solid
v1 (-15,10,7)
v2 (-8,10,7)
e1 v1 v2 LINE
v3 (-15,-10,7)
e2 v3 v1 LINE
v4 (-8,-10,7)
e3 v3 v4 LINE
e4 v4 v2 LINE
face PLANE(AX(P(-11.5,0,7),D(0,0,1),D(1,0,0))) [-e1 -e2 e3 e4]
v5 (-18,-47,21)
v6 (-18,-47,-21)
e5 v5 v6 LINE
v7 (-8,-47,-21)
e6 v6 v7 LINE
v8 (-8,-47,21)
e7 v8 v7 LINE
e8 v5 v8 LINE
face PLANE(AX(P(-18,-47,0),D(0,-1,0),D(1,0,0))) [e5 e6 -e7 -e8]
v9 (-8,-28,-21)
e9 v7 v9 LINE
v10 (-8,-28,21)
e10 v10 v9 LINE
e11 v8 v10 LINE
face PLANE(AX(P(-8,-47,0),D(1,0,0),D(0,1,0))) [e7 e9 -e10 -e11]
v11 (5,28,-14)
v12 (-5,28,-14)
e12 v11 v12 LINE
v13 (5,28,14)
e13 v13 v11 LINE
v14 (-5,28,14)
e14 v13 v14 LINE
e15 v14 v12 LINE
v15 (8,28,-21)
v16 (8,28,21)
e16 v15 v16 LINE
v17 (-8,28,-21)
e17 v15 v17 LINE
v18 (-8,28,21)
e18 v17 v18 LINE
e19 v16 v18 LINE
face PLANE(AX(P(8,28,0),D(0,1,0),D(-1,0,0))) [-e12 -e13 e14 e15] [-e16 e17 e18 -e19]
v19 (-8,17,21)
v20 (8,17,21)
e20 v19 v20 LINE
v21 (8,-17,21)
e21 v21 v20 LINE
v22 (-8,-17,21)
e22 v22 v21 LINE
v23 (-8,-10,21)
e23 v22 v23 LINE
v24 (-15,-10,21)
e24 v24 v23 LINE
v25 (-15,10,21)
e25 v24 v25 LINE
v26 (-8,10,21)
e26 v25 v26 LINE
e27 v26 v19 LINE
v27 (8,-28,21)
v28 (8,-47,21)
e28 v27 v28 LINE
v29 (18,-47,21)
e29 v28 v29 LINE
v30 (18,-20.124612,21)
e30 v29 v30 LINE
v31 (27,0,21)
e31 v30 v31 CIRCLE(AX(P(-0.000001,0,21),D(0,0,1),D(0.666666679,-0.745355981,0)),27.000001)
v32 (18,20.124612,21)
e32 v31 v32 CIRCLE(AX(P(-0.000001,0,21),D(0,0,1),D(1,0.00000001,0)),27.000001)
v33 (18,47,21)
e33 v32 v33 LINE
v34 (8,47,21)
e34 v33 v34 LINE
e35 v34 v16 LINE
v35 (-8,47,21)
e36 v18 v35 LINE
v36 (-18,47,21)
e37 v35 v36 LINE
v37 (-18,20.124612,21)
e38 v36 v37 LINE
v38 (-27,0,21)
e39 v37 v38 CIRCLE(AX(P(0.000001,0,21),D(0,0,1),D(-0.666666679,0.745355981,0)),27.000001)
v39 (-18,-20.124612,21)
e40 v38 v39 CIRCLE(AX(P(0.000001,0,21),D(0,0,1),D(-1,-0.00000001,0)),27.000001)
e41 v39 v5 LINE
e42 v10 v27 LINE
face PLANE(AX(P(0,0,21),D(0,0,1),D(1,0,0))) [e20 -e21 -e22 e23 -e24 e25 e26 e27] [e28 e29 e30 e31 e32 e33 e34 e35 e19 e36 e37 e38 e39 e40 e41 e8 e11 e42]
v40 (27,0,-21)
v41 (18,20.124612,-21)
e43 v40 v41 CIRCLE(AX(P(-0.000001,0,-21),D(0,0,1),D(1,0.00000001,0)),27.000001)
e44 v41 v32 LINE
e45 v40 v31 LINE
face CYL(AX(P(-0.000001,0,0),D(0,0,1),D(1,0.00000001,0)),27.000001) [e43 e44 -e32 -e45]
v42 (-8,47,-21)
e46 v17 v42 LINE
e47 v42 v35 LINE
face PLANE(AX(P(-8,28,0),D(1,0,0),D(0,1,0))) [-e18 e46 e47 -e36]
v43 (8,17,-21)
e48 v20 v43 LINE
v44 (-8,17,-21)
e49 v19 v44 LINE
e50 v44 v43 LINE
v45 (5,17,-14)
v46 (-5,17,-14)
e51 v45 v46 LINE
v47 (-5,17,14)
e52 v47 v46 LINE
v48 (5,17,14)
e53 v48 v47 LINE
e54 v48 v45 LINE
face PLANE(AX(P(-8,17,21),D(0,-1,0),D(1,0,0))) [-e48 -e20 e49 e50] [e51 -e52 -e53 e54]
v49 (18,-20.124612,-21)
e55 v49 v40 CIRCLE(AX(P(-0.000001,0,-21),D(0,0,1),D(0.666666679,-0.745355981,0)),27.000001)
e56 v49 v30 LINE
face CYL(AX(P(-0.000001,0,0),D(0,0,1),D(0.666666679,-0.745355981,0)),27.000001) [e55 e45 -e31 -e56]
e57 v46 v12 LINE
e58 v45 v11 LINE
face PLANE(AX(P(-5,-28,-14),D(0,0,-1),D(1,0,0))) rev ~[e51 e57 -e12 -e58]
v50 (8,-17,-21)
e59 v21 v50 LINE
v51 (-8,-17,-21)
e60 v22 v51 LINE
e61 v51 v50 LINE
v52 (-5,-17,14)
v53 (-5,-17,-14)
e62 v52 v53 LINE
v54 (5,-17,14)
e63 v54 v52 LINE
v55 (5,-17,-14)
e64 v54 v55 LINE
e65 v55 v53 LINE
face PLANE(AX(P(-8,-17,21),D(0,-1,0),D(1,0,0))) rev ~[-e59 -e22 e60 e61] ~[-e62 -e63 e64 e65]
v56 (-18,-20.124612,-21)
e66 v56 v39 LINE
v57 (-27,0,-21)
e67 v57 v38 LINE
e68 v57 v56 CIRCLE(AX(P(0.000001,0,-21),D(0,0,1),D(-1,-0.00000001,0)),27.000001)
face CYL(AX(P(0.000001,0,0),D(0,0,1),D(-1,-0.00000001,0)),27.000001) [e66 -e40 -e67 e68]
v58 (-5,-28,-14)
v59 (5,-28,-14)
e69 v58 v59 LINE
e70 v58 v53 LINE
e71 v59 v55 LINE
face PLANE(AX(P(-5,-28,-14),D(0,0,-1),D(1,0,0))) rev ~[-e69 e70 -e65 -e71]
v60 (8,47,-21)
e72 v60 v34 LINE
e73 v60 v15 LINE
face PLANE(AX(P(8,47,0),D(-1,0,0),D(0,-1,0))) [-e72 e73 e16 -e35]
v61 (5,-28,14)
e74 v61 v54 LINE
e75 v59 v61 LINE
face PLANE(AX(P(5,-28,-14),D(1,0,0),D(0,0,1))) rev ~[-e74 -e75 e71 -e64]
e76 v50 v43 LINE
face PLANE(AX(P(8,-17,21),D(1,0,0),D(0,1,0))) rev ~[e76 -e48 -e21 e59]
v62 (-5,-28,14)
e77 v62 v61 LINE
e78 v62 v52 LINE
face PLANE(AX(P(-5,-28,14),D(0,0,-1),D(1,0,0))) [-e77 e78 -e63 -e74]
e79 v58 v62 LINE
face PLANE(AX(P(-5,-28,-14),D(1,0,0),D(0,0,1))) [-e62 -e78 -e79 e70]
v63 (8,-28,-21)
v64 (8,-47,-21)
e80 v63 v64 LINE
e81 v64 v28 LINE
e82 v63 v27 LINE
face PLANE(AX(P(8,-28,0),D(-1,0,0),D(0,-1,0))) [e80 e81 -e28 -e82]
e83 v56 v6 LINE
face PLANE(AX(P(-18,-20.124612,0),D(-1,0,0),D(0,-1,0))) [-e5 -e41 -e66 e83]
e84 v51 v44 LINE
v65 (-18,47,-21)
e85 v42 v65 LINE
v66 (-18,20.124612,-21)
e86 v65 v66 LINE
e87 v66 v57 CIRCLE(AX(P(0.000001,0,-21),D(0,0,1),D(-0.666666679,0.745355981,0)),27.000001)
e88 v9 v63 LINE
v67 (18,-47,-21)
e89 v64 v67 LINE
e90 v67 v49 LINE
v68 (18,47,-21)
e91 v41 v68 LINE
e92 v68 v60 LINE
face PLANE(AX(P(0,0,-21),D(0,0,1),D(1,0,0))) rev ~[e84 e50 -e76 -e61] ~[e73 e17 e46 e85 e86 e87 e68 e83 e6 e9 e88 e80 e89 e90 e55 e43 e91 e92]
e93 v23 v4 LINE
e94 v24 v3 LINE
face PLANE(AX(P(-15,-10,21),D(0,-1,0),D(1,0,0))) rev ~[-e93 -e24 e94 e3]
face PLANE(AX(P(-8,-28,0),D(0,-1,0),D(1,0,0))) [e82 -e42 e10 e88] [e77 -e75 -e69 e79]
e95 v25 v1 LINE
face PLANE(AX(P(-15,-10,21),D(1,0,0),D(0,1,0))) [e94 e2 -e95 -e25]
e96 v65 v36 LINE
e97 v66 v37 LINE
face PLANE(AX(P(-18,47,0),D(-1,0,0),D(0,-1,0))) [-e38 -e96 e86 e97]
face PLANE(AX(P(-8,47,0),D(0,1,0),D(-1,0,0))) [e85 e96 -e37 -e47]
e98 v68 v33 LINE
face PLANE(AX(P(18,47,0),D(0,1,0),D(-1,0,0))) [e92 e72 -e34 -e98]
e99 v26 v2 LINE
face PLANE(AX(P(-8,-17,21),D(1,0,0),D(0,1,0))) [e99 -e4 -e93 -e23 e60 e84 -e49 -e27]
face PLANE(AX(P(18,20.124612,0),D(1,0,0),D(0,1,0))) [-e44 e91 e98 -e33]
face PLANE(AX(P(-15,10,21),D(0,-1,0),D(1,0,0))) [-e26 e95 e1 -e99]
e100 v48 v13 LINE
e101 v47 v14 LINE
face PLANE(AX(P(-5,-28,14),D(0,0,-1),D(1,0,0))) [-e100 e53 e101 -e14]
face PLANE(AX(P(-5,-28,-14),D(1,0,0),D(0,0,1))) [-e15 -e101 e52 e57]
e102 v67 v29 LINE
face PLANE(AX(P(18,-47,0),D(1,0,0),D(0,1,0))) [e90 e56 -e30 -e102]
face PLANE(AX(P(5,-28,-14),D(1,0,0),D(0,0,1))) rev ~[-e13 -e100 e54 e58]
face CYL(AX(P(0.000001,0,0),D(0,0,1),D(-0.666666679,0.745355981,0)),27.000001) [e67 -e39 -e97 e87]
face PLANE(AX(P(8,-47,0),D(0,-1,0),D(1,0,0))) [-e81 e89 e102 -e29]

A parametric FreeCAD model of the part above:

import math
import FreeCAD as App
import Part
import Sketcher

doc = App.newDocument("Part")
body = doc.addObject("PartDesign::Body", "Body")

# Sketch on XY plane
sketch1 = doc.addObject("Sketcher::SketchObject", "Sketch")
body.addObject(sketch1)
sketch1.AttachmentSupport = (doc.XY_Plane, [""])
sketch1.MapMode = "FlatFace"
sketch1.addGeometry([
    Part.LineSegment(App.Vector(-8, -28, 0), App.Vector(8, -28, 0)),  # 0
    Part.LineSegment(App.Vector(8, -28, 0), App.Vector(8, -47, 0)),  # 1
    Part.LineSegment(App.Vector(8, -47, 0), App.Vector(18, -47, 0)),  # 2
    Part.LineSegment(App.Vector(18, -47, 0), App.Vector(18, -20.124612, 0)),  # 3
    Part.ArcOfCircle(Part.Circle(App.Vector(-0.000001, 0, 0), App.Vector(0, 0, 1), 27.000001), math.radians(-48.189684), math.radians(-0.000001)),  # 4
    Part.ArcOfCircle(Part.Circle(App.Vector(-0.000001, 0, 0), App.Vector(0, 0, 1), 27.000001), math.radians(0.000001), math.radians(48.189684)),  # 5
    Part.LineSegment(App.Vector(18, 20.124612, 0), App.Vector(18, 47, 0)),  # 6
    Part.LineSegment(App.Vector(18, 47, 0), App.Vector(8, 47, 0)),  # 7
    Part.LineSegment(App.Vector(8, 47, 0), App.Vector(8, 28, 0)),  # 8
    Part.LineSegment(App.Vector(8, 28, 0), App.Vector(-8, 28, 0)),  # 9
    Part.LineSegment(App.Vector(-8, 28, 0), App.Vector(-8, 47, 0)),  # 10
    Part.LineSegment(App.Vector(-8, 47, 0), App.Vector(-18, 47, 0)),  # 11
    Part.LineSegment(App.Vector(-18, 47, 0), App.Vector(-18, 20.124612, 0)),  # 12
    Part.ArcOfCircle(Part.Circle(App.Vector(0.000001, 0, 0), App.Vector(0, 0, 1), 27.000001), math.radians(131.810316), math.radians(179.999999)),  # 13
    Part.ArcOfCircle(Part.Circle(App.Vector(0.000001, 0, 0), App.Vector(0, 0, 1), 27.000001), math.radians(-179.999999), math.radians(-131.810316)),  # 14
    Part.LineSegment(App.Vector(-18, -20.124612, 0), App.Vector(-18, -47, 0)),  # 15
    Part.LineSegment(App.Vector(-18, -47, 0), App.Vector(-8, -47, 0)),  # 16
    Part.LineSegment(App.Vector(-8, -47, 0), App.Vector(-8, -28, 0)),  # 17
], False)
sketch1.addConstraint([
    Sketcher.Constraint("Coincident", 0, 2, 1, 1),
    Sketcher.Constraint("Coincident", 1, 2, 2, 1),
    Sketcher.Constraint("Coincident", 2, 2, 3, 1),
    Sketcher.Constraint("Coincident", 3, 2, 4, 1),
    Sketcher.Constraint("Tangent", 4, 2, 5, 1),
    Sketcher.Constraint("Coincident", 5, 2, 6, 1),
    Sketcher.Constraint("Coincident", 6, 2, 7, 1),
    Sketcher.Constraint("Coincident", 7, 2, 8, 1),
    Sketcher.Constraint("Coincident", 8, 2, 9, 1),
    Sketcher.Constraint("Coincident", 9, 2, 10, 1),
    Sketcher.Constraint("Coincident", 10, 2, 11, 1),
    Sketcher.Constraint("Coincident", 11, 2, 12, 1),
    Sketcher.Constraint("Coincident", 12, 2, 13, 1),
    Sketcher.Constraint("Tangent", 13, 2, 14, 1),
    Sketcher.Constraint("Coincident", 14, 2, 15, 1),
    Sketcher.Constraint("Coincident", 15, 2, 16, 1),
    Sketcher.Constraint("Coincident", 16, 2, 17, 1),
    Sketcher.Constraint("Coincident", 17, 2, 0, 1),
    Sketcher.Constraint("Horizontal", 0),
    Sketcher.Constraint("Vertical", 1),
    Sketcher.Constraint("Horizontal", 2),
    Sketcher.Constraint("Vertical", 3),
    Sketcher.Constraint("Vertical", 6),
    Sketcher.Constraint("Horizontal", 7),
    Sketcher.Constraint("Vertical", 8),
    Sketcher.Constraint("Horizontal", 9),
    Sketcher.Constraint("Vertical", 10),
    Sketcher.Constraint("Horizontal", 11),
    Sketcher.Constraint("Vertical", 12),
    Sketcher.Constraint("Vertical", 15),
    Sketcher.Constraint("Horizontal", 16),
    Sketcher.Constraint("Vertical", 17),
    Sketcher.Constraint("Coincident", 4, 3, -1, 1),
    Sketcher.Constraint("Coincident", 13, 3, -1, 1),
    Sketcher.Constraint("Equal", 4, 5),
    Sketcher.Constraint("Equal", 5, 13),
    Sketcher.Constraint("Equal", 13, 14),
    Sketcher.Constraint("Symmetric", 0, 2, 9, 2, -1, 1),
    Sketcher.Constraint("Symmetric", 2, 2, 11, 2, -1, 1),
    Sketcher.Constraint("Symmetric", 6, 2, 15, 2, -1, 1),
    Sketcher.Constraint("Symmetric", 7, 2, 10, 2, -2),
    Sketcher.Constraint("PointOnObject", 4, 2, -1),
    Sketcher.Constraint("PointOnObject", 13, 2, -1),
    Sketcher.Constraint("Horizontal", 5, 2, 12, 2),
    Sketcher.Constraint("Vertical", 10, 2, 16, 2),
    Sketcher.Constraint("Radius", 4, 27.000001),
    Sketcher.Constraint("DistanceX", 0, 1, 0, 2, 16.0),
    Sketcher.Constraint("DistanceX", 2, 1, 2, 2, 10.0),
    Sketcher.Constraint("DistanceY", 1, 2, 1, 1, 19.0),
    Sketcher.Constraint("DistanceY", 0, 2, -1, 1, 28.0),
])
pad1 = doc.addObject("PartDesign::Pad", "Pad")
body.addObject(pad1)
pad1.Profile = sketch1
pad1.Length = 42
pad1.Midplane = True

# Sketch on XZ plane
sketch2 = doc.addObject("Sketcher::SketchObject", "Sketch001")
body.addObject(sketch2)
sketch2.AttachmentSupport = (doc.XZ_Plane, [""])
sketch2.MapMode = "FlatFace"
sketch2.AttachmentOffset = App.Placement(App.Vector(0, 0, 28), App.Rotation())
sketch2.addGeometry([
    Part.LineSegment(App.Vector(-5, 14, 0), App.Vector(-5, -14, 0)),
    Part.LineSegment(App.Vector(-5, -14, 0), App.Vector(5, -14, 0)),
    Part.LineSegment(App.Vector(5, -14, 0), App.Vector(5, 14, 0)),
    Part.LineSegment(App.Vector(5, 14, 0), App.Vector(-5, 14, 0)),
], False)
sketch2.addConstraint([
    Sketcher.Constraint("Coincident", 0, 2, 1, 1),
    Sketcher.Constraint("Coincident", 1, 2, 2, 1),
    Sketcher.Constraint("Coincident", 2, 2, 3, 1),
    Sketcher.Constraint("Coincident", 3, 2, 0, 1),
    Sketcher.Constraint("Vertical", 0),
    Sketcher.Constraint("Horizontal", 1),
    Sketcher.Constraint("Vertical", 2),
    Sketcher.Constraint("Horizontal", 3),
    Sketcher.Constraint("Symmetric", 0, 2, 2, 2, -1, 1),
    Sketcher.Constraint("DistanceX", 1, 1, 1, 2, 10.0),
    Sketcher.Constraint("DistanceY", 0, 2, 0, 1, 28.0),
])
pocket1 = doc.addObject("PartDesign::Pocket", "Pocket")
body.addObject(pocket1)
pocket1.Profile = sketch2
pocket1.Type = "ThroughAll"

# Sketch on XY plane
sketch3 = doc.addObject("Sketcher::SketchObject", "Sketch002")
body.addObject(sketch3)
sketch3.AttachmentSupport = (doc.XY_Plane, [""])
sketch3.MapMode = "FlatFace"
sketch3.AttachmentOffset = App.Placement(App.Vector(0, 0, 21), App.Rotation())
sketch3.addGeometry([
    Part.LineSegment(App.Vector(-8, 17, 0), App.Vector(-8, -17, 0)),
    Part.LineSegment(App.Vector(-8, -17, 0), App.Vector(8, -17, 0)),
    Part.LineSegment(App.Vector(8, -17, 0), App.Vector(8, 17, 0)),
    Part.LineSegment(App.Vector(8, 17, 0), App.Vector(-8, 17, 0)),
], False)
sketch3.addConstraint([
    Sketcher.Constraint("Coincident", 0, 2, 1, 1),
    Sketcher.Constraint("Coincident", 1, 2, 2, 1),
    Sketcher.Constraint("Coincident", 2, 2, 3, 1),
    Sketcher.Constraint("Coincident", 3, 2, 0, 1),
    Sketcher.Constraint("Vertical", 0),
    Sketcher.Constraint("Horizontal", 1),
    Sketcher.Constraint("Vertical", 2),
    Sketcher.Constraint("Horizontal", 3),
    Sketcher.Constraint("Symmetric", 0, 2, 2, 2, -1, 1),
    Sketcher.Constraint("DistanceX", 1, 1, 1, 2, 16.0),
    Sketcher.Constraint("DistanceY", 0, 2, 0, 1, 34.0),
])
pocket2 = doc.addObject("PartDesign::Pocket", "Pocket001")
body.addObject(pocket2)
pocket2.Profile = sketch3
pocket2.Type = "ThroughAll"

# Sketch on XY plane
sketch4 = doc.addObject("Sketcher::SketchObject", "Sketch003")
body.addObject(sketch4)
sketch4.AttachmentSupport = (doc.XY_Plane, [""])
sketch4.MapMode = "FlatFace"
sketch4.AttachmentOffset = App.Placement(App.Vector(0, 0, 21), App.Rotation())
sketch4.addGeometry([
    Part.LineSegment(App.Vector(-15, 10, 0), App.Vector(-15, -10, 0)),
    Part.LineSegment(App.Vector(-15, -10, 0), App.Vector(-8, -10, 0)),
    Part.LineSegment(App.Vector(-8, -10, 0), App.Vector(-8, 10, 0)),
    Part.LineSegment(App.Vector(-8, 10, 0), App.Vector(-15, 10, 0)),
], False)
sketch4.addConstraint([
    Sketcher.Constraint("Coincident", 0, 2, 1, 1),
    Sketcher.Constraint("Coincident", 1, 2, 2, 1),
    Sketcher.Constraint("Coincident", 2, 2, 3, 1),
    Sketcher.Constraint("Coincident", 3, 2, 0, 1),
    Sketcher.Constraint("Vertical", 0),
    Sketcher.Constraint("Horizontal", 1),
    Sketcher.Constraint("Vertical", 2),
    Sketcher.Constraint("Horizontal", 3),
    Sketcher.Constraint("DistanceX", 1, 1, 1, 2, 7.0),
    Sketcher.Constraint("DistanceY", 0, 2, 0, 1, 20.0),
    Sketcher.Constraint("DistanceX", 0, 2, -1, 1, 15.0),
    Sketcher.Constraint("DistanceY", 0, 2, -1, 1, 10.0),
])
pocket3 = doc.addObject("PartDesign::Pocket", "Pocket002")
body.addObject(pocket3)
pocket3.Profile = sketch4
pocket3.Length = 14

doc.recompute()
